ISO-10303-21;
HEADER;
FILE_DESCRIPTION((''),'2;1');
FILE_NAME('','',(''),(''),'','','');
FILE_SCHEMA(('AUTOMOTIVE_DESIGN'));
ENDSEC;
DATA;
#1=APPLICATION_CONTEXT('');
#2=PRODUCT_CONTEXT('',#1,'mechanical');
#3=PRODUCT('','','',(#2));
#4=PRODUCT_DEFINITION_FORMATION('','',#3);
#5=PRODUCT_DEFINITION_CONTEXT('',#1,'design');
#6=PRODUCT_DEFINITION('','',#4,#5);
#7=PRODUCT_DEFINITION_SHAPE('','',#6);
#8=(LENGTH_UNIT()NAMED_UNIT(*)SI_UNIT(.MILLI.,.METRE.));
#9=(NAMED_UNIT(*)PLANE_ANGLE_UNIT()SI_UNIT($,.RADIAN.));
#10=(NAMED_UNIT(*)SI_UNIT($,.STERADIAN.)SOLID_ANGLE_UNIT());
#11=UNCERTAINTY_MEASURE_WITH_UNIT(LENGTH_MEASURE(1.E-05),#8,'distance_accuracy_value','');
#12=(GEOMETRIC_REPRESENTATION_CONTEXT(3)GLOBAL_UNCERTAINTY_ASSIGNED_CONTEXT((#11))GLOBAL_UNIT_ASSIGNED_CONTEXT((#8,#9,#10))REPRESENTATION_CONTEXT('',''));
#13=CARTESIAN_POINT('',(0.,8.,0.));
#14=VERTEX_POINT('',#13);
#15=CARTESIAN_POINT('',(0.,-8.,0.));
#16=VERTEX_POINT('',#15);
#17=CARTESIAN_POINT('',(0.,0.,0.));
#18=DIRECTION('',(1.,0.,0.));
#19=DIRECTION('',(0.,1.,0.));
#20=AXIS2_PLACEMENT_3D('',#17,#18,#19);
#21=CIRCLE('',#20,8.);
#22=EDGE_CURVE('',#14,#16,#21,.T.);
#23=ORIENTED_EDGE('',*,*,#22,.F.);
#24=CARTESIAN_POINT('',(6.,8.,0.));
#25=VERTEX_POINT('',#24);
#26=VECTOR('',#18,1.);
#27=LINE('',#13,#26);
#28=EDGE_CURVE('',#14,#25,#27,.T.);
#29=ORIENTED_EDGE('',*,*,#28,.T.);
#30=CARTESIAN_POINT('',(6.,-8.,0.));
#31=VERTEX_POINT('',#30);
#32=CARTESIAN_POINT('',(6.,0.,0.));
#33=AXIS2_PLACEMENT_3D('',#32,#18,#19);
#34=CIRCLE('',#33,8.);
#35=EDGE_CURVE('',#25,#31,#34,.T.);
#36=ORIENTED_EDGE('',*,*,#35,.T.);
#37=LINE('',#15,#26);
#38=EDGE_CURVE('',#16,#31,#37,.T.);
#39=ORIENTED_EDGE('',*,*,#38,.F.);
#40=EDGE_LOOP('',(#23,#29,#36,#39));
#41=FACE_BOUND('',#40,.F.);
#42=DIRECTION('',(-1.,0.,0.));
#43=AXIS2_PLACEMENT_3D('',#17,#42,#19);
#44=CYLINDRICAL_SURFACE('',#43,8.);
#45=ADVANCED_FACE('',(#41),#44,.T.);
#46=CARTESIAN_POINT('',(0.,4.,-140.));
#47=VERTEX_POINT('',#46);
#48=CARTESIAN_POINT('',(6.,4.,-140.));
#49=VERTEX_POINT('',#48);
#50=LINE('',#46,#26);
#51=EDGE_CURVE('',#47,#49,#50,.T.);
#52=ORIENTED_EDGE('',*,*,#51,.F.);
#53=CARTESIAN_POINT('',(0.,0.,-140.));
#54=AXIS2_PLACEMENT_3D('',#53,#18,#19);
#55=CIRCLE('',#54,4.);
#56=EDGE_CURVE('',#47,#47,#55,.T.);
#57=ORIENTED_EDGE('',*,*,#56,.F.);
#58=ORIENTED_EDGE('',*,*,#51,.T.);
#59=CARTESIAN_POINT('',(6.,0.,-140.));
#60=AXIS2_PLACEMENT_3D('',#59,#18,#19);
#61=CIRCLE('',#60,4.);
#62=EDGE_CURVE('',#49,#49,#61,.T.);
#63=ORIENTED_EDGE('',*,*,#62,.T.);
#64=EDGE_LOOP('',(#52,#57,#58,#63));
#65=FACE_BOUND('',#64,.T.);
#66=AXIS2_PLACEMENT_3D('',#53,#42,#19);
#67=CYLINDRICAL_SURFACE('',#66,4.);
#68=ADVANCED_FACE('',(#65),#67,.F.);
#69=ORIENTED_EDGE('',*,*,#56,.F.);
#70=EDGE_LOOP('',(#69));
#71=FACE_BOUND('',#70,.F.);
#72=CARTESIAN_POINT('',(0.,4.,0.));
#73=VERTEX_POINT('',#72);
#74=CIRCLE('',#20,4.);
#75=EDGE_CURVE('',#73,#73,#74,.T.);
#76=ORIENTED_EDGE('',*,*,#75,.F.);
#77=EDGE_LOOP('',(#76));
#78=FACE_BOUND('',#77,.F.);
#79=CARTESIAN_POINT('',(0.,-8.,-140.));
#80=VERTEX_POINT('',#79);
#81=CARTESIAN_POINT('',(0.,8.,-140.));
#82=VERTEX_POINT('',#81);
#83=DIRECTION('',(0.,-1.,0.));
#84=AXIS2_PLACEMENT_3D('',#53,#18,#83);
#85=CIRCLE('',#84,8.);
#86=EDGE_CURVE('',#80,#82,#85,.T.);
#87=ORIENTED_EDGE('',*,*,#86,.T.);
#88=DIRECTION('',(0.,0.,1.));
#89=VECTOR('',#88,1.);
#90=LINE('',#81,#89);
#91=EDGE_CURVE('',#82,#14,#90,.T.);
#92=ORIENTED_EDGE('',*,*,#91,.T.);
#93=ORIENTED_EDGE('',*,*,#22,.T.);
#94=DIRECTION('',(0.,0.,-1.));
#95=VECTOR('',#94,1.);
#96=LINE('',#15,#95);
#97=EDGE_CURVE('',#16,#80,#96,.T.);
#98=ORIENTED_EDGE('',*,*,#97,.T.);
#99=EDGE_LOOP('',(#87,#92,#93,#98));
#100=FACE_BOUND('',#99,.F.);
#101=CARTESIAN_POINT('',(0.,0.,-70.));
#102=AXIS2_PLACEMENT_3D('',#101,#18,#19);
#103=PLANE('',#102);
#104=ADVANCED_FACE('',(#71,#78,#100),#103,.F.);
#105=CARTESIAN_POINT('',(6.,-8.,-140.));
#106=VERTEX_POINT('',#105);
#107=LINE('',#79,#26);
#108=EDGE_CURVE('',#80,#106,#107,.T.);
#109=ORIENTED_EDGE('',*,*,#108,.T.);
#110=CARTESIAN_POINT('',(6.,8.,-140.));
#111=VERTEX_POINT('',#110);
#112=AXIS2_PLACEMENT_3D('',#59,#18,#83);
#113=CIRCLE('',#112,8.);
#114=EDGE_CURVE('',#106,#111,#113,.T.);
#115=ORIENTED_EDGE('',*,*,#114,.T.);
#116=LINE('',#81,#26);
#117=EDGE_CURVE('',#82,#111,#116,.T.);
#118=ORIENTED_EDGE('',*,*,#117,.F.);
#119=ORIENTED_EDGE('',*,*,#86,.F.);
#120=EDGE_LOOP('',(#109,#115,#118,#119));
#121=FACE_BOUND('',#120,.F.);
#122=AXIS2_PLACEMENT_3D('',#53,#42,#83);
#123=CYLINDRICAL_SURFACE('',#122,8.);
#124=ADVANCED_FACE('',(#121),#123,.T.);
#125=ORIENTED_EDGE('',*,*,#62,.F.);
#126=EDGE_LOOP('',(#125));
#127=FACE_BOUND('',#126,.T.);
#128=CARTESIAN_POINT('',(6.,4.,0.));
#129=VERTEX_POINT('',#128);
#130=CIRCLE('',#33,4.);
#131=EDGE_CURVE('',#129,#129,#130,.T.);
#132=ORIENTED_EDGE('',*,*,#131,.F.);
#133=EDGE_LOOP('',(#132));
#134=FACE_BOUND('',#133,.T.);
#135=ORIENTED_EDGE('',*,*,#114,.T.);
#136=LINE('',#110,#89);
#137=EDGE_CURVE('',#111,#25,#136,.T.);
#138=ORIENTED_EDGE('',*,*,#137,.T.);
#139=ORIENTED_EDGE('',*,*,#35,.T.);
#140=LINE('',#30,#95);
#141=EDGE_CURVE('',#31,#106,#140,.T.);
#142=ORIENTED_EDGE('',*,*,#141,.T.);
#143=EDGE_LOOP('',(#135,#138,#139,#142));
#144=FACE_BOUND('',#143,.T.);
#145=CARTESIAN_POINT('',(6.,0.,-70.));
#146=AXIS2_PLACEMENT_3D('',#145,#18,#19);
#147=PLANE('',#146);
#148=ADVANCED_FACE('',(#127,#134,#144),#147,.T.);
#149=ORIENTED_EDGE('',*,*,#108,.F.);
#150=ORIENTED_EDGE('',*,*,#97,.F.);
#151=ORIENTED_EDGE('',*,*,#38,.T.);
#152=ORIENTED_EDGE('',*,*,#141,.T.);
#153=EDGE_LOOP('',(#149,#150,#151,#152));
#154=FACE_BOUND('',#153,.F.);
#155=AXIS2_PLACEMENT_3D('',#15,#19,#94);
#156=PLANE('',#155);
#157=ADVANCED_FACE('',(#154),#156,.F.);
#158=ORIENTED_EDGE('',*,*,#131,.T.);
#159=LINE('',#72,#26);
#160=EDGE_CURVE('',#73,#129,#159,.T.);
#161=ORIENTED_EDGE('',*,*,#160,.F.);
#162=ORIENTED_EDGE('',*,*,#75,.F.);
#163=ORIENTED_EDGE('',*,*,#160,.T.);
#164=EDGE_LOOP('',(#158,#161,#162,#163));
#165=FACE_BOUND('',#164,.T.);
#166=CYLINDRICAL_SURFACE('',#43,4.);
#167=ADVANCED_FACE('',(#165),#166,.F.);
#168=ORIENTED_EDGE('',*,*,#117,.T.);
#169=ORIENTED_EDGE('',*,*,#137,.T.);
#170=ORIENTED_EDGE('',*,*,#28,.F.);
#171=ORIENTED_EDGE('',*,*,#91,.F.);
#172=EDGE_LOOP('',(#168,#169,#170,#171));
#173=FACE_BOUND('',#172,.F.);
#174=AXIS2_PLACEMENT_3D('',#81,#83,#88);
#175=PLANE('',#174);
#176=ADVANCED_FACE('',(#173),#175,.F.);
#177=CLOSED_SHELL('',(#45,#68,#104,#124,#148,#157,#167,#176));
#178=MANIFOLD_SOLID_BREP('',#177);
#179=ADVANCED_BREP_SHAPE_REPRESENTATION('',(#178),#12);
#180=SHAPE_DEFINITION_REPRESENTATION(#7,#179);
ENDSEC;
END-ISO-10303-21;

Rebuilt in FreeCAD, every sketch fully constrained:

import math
import FreeCAD as App
import Part
import Sketcher

V = App.Vector

doc = App.newDocument("Part")
body = doc.addObject("PartDesign::Body", "Body")

sketch1 = body.newObject("Sketcher::SketchObject", "Sketch")
sketch1.AttachmentSupport = (doc.getObject("YZ_Plane"), [""])
sketch1.MapMode = "FlatFace"
sketch1.addGeometry([
    Part.LineSegment(V(8, -140, 0), V(8, 0, 0)),
    Part.ArcOfCircle(Part.Circle(V(0, 0, 0), V(0, 0, 1), 8), math.radians(0), math.radians(180)),
    Part.LineSegment(V(-8, 0, 0), V(-8, -140, 0)),
    Part.ArcOfCircle(Part.Circle(V(0, -140, 0), V(0, 0, 1), 8), math.radians(180), math.radians(360)),
    Part.Circle(V(0, -140, 0), V(0, 0, 1), 4),
    Part.Circle(V(0, 0, 0), V(0, 0, 1), 4),
], False)
sketch1.addConstraint([
    Sketcher.Constraint("Tangent", 0, 2, 1, 1),
    Sketcher.Constraint("Tangent", 1, 2, 2, 1),
    Sketcher.Constraint("Tangent", 2, 2, 3, 1),
    Sketcher.Constraint("Tangent", 3, 2, 0, 1),
    Sketcher.Constraint("Vertical", 0),
    Sketcher.Constraint("Vertical", 2),
    Sketcher.Constraint("Coincident", 1, 3, -1, 1),
    Sketcher.Constraint("Coincident", 5, 3, -1, 1),
    Sketcher.Constraint("Coincident", 4, 3, 3, 3),
    Sketcher.Constraint("Equal", 4, 5),
    Sketcher.Constraint("Diameter", 4, 8.0),
    Sketcher.Constraint("Radius", 1, 8.0),
    Sketcher.Constraint("DistanceY", 0, 1, 0, 2, 140.0),
])
pad1 = body.newObject("PartDesign::Pad", "Pad")
pad1.Profile = sketch1
pad1.Length = 6

doc.recompute()
